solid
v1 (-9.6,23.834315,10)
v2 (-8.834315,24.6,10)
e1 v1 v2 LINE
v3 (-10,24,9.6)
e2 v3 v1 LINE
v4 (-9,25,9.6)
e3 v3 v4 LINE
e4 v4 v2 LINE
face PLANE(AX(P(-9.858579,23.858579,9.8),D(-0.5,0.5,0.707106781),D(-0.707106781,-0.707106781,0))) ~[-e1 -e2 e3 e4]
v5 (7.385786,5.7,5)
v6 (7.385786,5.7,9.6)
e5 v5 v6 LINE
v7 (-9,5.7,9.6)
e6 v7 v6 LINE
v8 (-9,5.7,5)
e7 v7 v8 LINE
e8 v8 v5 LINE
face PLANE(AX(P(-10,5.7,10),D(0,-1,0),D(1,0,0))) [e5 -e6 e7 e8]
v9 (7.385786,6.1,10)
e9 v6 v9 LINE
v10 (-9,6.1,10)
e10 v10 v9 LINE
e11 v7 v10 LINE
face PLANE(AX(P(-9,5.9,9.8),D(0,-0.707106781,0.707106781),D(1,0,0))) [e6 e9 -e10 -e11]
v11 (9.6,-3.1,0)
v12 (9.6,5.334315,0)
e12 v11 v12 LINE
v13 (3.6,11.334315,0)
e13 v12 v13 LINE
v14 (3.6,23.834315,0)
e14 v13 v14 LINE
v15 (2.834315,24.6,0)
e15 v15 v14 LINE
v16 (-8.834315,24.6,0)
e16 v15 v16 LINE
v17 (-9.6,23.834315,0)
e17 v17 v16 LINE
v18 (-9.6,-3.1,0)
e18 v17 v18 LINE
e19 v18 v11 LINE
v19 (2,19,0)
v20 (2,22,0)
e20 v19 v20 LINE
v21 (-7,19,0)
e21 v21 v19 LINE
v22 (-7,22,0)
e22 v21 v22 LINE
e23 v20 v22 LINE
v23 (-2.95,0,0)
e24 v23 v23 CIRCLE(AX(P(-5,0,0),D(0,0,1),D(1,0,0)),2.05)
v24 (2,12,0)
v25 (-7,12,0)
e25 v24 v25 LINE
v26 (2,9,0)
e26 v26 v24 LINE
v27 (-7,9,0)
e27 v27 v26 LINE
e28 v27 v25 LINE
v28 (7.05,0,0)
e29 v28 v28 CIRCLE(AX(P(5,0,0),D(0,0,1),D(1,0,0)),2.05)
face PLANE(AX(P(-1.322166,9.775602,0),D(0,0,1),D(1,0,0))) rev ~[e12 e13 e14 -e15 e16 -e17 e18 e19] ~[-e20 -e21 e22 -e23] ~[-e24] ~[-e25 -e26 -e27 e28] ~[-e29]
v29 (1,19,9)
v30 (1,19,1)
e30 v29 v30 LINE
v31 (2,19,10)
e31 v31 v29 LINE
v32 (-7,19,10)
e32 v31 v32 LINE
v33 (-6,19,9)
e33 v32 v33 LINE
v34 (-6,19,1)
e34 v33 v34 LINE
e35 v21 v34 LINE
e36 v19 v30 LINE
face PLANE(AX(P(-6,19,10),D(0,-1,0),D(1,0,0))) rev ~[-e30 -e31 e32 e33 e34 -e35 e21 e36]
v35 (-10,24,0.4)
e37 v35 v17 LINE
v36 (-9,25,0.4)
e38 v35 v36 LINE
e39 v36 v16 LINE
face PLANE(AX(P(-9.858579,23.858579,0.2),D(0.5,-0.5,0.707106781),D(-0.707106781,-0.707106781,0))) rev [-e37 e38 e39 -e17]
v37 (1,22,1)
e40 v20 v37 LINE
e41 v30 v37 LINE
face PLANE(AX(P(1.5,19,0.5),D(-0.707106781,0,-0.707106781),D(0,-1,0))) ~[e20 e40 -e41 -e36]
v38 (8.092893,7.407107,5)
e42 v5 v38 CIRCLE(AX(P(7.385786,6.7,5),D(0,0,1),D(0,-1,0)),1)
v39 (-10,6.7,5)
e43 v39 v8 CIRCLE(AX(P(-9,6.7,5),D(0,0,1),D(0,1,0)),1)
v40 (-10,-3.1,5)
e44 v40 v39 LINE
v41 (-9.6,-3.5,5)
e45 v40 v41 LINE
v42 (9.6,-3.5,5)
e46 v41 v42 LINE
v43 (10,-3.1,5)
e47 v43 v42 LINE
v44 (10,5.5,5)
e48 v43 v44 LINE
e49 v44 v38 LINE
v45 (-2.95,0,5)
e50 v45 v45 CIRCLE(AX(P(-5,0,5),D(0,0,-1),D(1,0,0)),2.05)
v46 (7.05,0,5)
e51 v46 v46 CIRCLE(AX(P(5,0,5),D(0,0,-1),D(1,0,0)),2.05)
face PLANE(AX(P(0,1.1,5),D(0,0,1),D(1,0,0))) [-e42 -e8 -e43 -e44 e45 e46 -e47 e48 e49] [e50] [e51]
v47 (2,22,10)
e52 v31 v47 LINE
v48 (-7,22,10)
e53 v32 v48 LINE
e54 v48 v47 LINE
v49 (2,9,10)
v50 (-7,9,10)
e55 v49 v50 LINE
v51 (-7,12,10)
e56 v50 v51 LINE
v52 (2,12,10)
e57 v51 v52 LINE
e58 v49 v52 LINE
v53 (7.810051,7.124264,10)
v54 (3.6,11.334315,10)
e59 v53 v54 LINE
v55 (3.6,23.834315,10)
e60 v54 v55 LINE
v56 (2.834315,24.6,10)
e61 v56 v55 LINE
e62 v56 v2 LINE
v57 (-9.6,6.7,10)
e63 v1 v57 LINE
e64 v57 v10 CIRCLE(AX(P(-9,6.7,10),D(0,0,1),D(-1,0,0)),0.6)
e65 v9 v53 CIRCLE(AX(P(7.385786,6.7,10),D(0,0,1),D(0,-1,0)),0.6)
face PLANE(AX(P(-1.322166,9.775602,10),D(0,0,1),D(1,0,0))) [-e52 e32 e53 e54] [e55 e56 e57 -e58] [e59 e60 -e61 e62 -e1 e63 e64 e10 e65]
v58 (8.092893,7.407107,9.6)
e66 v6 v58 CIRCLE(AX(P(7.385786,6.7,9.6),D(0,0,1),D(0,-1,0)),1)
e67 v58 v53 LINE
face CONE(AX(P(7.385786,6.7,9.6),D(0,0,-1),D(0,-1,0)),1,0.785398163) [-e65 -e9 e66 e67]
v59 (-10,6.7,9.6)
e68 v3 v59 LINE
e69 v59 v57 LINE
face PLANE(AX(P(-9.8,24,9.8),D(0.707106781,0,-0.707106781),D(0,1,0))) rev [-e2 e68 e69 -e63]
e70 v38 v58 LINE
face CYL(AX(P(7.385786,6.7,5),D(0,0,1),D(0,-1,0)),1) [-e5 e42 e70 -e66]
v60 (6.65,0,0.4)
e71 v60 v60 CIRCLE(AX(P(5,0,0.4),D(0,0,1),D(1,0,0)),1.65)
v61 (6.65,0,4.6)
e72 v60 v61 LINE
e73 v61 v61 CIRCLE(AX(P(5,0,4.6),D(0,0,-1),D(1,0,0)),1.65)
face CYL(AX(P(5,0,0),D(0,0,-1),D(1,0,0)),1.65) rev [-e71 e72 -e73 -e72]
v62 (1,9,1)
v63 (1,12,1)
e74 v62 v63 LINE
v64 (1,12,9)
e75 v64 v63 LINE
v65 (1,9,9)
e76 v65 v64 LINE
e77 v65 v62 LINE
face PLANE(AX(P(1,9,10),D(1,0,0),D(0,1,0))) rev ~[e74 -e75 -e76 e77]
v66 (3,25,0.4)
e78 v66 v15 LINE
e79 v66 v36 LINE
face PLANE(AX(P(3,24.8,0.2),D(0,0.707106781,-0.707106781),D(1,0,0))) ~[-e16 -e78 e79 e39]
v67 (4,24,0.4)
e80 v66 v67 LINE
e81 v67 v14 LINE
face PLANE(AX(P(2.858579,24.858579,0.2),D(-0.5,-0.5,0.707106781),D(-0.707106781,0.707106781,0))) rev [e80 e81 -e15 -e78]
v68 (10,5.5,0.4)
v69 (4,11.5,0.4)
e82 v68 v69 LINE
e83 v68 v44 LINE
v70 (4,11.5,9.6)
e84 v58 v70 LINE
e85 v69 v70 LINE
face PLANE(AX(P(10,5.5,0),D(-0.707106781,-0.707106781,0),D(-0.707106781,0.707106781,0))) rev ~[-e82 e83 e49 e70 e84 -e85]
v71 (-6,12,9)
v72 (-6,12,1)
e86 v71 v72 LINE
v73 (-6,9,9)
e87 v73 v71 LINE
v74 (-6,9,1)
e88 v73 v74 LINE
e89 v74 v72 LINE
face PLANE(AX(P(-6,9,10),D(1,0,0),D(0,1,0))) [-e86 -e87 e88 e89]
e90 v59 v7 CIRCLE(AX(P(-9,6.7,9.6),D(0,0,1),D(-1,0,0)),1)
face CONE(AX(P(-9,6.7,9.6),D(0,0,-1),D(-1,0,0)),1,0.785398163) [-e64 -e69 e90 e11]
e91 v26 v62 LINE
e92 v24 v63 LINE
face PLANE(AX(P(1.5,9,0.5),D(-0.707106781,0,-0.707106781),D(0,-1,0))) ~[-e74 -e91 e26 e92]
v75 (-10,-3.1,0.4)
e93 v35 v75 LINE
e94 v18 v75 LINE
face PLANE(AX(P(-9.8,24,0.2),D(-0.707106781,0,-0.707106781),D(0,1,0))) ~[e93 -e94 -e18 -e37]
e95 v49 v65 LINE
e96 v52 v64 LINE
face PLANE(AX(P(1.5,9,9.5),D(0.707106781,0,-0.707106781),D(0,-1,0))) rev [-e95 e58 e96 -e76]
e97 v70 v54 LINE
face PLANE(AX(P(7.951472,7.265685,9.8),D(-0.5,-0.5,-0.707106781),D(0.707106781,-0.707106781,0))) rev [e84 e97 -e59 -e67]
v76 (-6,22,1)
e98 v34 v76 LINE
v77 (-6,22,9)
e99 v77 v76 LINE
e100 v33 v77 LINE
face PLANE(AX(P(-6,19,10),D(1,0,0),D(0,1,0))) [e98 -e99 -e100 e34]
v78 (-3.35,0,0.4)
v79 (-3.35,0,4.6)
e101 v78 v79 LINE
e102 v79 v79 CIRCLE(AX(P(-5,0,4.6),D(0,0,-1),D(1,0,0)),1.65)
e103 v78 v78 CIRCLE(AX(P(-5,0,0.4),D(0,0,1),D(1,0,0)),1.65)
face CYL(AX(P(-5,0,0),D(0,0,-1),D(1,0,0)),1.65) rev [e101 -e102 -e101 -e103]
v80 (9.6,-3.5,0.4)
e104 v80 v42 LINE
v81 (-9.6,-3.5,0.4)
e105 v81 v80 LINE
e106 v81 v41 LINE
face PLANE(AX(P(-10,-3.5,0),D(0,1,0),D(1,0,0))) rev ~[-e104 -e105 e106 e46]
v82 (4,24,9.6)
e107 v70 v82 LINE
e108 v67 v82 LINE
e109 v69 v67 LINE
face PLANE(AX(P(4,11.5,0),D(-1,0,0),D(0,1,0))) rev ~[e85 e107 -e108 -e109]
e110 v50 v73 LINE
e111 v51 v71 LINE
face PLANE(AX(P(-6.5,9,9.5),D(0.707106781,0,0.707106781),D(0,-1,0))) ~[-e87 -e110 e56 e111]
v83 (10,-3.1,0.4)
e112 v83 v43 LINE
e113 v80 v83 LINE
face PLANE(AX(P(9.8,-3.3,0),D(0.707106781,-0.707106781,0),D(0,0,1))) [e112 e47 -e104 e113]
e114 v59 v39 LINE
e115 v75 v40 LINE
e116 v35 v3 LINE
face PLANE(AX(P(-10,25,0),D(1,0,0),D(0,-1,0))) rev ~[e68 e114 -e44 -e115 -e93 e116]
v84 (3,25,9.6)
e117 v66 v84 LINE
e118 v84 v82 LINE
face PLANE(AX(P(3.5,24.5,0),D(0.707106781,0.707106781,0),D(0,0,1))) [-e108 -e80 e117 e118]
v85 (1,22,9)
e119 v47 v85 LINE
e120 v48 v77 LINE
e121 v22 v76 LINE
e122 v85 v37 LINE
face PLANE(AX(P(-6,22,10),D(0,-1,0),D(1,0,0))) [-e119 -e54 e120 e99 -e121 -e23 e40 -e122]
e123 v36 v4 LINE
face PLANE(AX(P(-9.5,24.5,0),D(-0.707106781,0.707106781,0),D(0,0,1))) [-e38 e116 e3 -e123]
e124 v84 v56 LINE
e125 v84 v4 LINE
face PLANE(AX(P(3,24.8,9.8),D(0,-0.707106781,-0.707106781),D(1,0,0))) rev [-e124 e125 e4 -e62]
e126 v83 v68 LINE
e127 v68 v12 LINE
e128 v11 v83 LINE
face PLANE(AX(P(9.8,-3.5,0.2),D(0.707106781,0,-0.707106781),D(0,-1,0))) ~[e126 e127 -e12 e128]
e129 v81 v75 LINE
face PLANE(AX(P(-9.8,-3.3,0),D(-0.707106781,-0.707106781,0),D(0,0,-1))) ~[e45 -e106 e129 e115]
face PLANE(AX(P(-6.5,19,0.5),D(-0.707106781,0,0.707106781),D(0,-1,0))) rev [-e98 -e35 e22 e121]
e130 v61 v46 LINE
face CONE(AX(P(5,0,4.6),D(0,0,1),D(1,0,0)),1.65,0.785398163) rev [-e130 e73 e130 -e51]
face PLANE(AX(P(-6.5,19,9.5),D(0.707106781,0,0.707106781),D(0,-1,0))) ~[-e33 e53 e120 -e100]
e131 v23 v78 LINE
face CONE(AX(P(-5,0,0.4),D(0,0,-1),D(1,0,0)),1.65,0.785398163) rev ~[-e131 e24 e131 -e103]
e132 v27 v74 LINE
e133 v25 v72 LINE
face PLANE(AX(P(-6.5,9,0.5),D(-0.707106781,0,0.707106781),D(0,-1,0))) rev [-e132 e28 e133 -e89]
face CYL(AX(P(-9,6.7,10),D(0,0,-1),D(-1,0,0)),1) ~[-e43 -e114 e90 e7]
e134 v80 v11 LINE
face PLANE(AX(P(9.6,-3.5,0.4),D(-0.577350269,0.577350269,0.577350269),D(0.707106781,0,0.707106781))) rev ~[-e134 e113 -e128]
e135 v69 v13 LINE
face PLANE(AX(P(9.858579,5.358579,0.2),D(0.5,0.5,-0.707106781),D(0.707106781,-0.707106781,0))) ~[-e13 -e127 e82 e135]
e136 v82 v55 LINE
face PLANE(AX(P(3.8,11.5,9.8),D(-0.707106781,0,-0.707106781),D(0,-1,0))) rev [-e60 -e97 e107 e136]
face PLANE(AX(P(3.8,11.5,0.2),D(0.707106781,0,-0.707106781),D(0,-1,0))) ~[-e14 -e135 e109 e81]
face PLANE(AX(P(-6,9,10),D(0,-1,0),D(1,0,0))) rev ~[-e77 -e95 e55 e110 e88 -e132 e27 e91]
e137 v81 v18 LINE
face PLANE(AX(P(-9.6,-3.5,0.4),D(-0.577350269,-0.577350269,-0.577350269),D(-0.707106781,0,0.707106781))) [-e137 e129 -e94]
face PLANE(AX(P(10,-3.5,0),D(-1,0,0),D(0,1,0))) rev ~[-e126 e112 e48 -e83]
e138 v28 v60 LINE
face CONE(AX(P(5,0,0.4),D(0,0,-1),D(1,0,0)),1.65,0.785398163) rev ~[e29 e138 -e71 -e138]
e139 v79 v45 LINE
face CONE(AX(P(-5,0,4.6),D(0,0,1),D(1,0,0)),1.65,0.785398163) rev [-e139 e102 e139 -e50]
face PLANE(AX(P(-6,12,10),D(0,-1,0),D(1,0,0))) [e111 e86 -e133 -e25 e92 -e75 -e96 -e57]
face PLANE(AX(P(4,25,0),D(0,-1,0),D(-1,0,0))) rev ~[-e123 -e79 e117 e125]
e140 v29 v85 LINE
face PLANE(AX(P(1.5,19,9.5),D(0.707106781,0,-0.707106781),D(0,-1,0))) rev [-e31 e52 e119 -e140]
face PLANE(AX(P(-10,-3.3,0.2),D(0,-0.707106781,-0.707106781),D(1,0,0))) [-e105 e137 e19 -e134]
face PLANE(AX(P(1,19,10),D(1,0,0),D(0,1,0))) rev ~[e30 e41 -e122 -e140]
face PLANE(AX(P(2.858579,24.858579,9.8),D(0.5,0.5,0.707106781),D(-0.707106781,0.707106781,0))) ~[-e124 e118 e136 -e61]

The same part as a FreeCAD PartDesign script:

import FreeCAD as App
import Part
import Sketcher

V = App.Vector
Q = App.Units.Quantity


def edges_at(feature, points):
    """Names of the edges that pass closest to the given points."""
    edges = feature.Shape.Edges
    near = lambda p: min(range(len(edges)), key=lambda i: edges[i].distToShape(Part.Vertex(*p))[0])
    return sorted({f"Edge{near(p) + 1}" for p in points})


def add_polygon(sketch, points):
    """Adds a closed chain of lines whose ends are joined by coincident constraints."""
    first, n = sketch.GeometryCount, len(points)
    for a, b in zip(points, points[1:] + points[:1]):
        sketch.addGeometry(Part.LineSegment(App.Vector(*a, 0), App.Vector(*b, 0)), False)
    for i in range(n):
        sketch.addConstraint(Sketcher.Constraint("Coincident", first + i, 2, first + (i + 1) % n, 1))

doc = App.newDocument("Part")
params = doc.addObject("Spreadsheet::Sheet", "Params")
for row, (alias, value) in enumerate([
    ("sketch1_diameter", "3.3 mm"),
    ("sketch1_width", "20 mm"),
    ("sketch1_width2", "14 mm"),
    ("sketch1_height", "9 mm"),
    ("sketch1_height2", "13.5 mm"),
    ("pad1_length", "10 mm"),
    ("sketch2_width", "7 mm"),
    ("sketch2_height", "3 mm"),
    ("chamfer_size", "1 mm"),
    ("sketch3_width", "20 mm"),
    ("sketch3_height", "9.2 mm"),
    ("pocket2_length", "5 mm"),
    ("fillet_radius", "1 mm"),
    ("chamfer2_size", "0.4 mm"),
], start=1):
    params.set(f"A{row}", alias)
    params.set(f"B{row}", "=" + value)
    params.setAlias(f"B{row}", alias)

body = doc.addObject("PartDesign::Body", "Body")

# Sketch on XY plane
sketch1 = doc.addObject("Sketcher::SketchObject", "Sketch")
body.addObject(sketch1)
sketch1.AttachmentSupport = (doc.XY_Plane, [""])
sketch1.MapMode = "FlatFace"
add_polygon(sketch1, [(-10, -3.5), (10, -3.5), (10, 5.5), (4, 11.5), (4, 25), (-10, 25)])  # lines 0-5
sketch1.addGeometry(Part.Circle(V(-5, 0, 0), V(0, 0, 1), 1.65), False)  # 6
sketch1.addGeometry(Part.Circle(V(5, 0, 0), V(0, 0, 1), 1.65), False)  # 7
sketch1.addConstraint(Sketcher.Constraint("Horizontal", 0))
sketch1.addConstraint(Sketcher.Constraint("Vertical", 1))
sketch1.addConstraint(Sketcher.Constraint("Vertical", 3))
sketch1.addConstraint(Sketcher.Constraint("Horizontal", 4))
sketch1.addConstraint(Sketcher.Constraint("Vertical", 5))
sketch1.addConstraint(Sketcher.Constraint("Equal", 6, 7))
sketch1.addConstraint(Sketcher.Constraint("Symmetric", 6, 3, 7, 3, -1, 1))
sketch1.addConstraint(Sketcher.Constraint("PointOnObject", 6, 3, -1))
sketch1.addConstraint(Sketcher.Constraint("Diameter", 6, Q("3.3 mm")))
sketch1.addConstraint(Sketcher.Constraint("DistanceX", 0, 1, 0, 2, Q("20 mm")))
sketch1.addConstraint(Sketcher.Constraint("DistanceX", 4, 2, 4, 1, Q("14 mm")))
sketch1.addConstraint(Sketcher.Constraint("DistanceY", 1, 1, 1, 2, Q("9 mm")))
sketch1.addConstraint(Sketcher.Constraint("Angle", 2, Q("135 deg")))
sketch1.addConstraint(Sketcher.Constraint("DistanceY", 3, 1, 3, 2, Q("13.5 mm")))
sketch1.addConstraint(Sketcher.Constraint("DistanceX", 6, 3, -1, 1, Q("5 mm")))
sketch1.addConstraint(Sketcher.Constraint("DistanceX", -1, 1, 0, 2, Q("10 mm")))
sketch1.addConstraint(Sketcher.Constraint("DistanceY", -1, 1, 3, 2, Q("25 mm")))
sketch1.setExpression("Constraints[14]", "Params.sketch1_diameter")
sketch1.setExpression("Constraints[15]", "Params.sketch1_width")
sketch1.setExpression("Constraints[16]", "Params.sketch1_width2")
sketch1.setExpression("Constraints[17]", "Params.sketch1_height")
sketch1.setExpression("Constraints[19]", "Params.sketch1_height2")
pad1 = doc.addObject("PartDesign::Pad", "Pad")
body.addObject(pad1)
pad1.Profile = sketch1
pad1.setExpression("Length", "Params.pad1_length")

# Sketch on XY plane
sketch2 = doc.addObject("Sketcher::SketchObject", "Sketch001")
body.addObject(sketch2)
sketch2.AttachmentSupport = (doc.XY_Plane, [""])
sketch2.MapMode = "FlatFace"
sketch2.AttachmentOffset = App.Placement(V(0, 0, 10), App.Rotation())
add_polygon(sketch2, [(-6, 22), (-6, 19), (1, 19), (1, 22)])  # lines 0-3
add_polygon(sketch2, [(-6, 12), (-6, 9), (1, 9), (1, 12)])  # lines 4-7
sketch2.addConstraint(Sketcher.Constraint("Vertical", 0))
sketch2.addConstraint(Sketcher.Constraint("Horizontal", 1))
sketch2.addConstraint(Sketcher.Constraint("Vertical", 2))
sketch2.addConstraint(Sketcher.Constraint("Horizontal", 3))
sketch2.addConstraint(Sketcher.Constraint("Vertical", 4))
sketch2.addConstraint(Sketcher.Constraint("Horizontal", 5))
sketch2.addConstraint(Sketcher.Constraint("Vertical", 6))
sketch2.addConstraint(Sketcher.Constraint("Horizontal", 7))
sketch2.addConstraint(Sketcher.Constraint("Vertical", 3, 2, 4, 2))
sketch2.addConstraint(Sketcher.Constraint("Vertical", 2, 2, 5, 2))
sketch2.addConstraint(Sketcher.Constraint("Equal", 2, 4))
sketch2.addConstraint(Sketcher.Constraint("DistanceX", 1, 1, 1, 2, Q("7 mm")))
sketch2.addConstraint(Sketcher.Constraint("DistanceY", 0, 2, 0, 1, Q("3 mm")))
sketch2.addConstraint(Sketcher.Constraint("DistanceX", 0, 2, -1, 1, Q("6 mm")))
sketch2.addConstraint(Sketcher.Constraint("DistanceY", -1, 1, 0, 2, Q("19 mm")))
sketch2.addConstraint(Sketcher.Constraint("DistanceY", -1, 1, 4, 2, Q("9 mm")))
sketch2.setExpression("Constraints[19]", "Params.sketch2_width")
sketch2.setExpression("Constraints[20]", "Params.sketch2_height")
pocket1 = doc.addObject("PartDesign::Pocket", "Pocket")
body.addObject(pocket1)
pocket1.Profile = sketch2
pocket1.Type = "ThroughAll"
doc.recompute()

chamfer = doc.addObject("PartDesign::Chamfer", "Chamfer")
body.addObject(chamfer)
chamfer.Base = (pocket1, edges_at(pocket1, [
    (-10, 25, 5),
    (4, 25, 5),
    (-6, 20.5, 10),
    (-6, 10.5, 10),
    (1, 10.5, 10),
    (1, 20.5, 10),
    (-6, 20.5, 0),
    (1, 20.5, 0),
    (-6, 10.5, 0),
    (1, 10.5, 0),
]))
chamfer.setExpression("Size", "Params.chamfer_size")

# Sketch on XY plane
sketch3 = doc.addObject("Sketcher::SketchObject", "Sketch002")
body.addObject(sketch3)
sketch3.AttachmentSupport = (doc.XY_Plane, [""])
sketch3.MapMode = "FlatFace"
sketch3.AttachmentOffset = App.Placement(V(0, 0, 10), App.Rotation())
add_polygon(sketch3, [(-10, 5.7), (-10, -3.5), (10, -3.5), (10, 5.7)])  # lines 0-3
sketch3.addConstraint(Sketcher.Constraint("Vertical", 0))
sketch3.addConstraint(Sketcher.Constraint("Horizontal", 1))
sketch3.addConstraint(Sketcher.Constraint("Vertical", 2))
sketch3.addConstraint(Sketcher.Constraint("Horizontal", 3))
sketch3.addConstraint(Sketcher.Constraint("DistanceX", 1, 1, 1, 2, Q("20 mm")))
sketch3.addConstraint(Sketcher.Constraint("DistanceY", 0, 2, 0, 1, Q("9.2 mm")))
sketch3.addConstraint(Sketcher.Constraint("DistanceX", 0, 2, -1, 1, Q("10 mm")))
sketch3.addConstraint(Sketcher.Constraint("DistanceY", 0, 2, -1, 1, Q("3.5 mm")))
sketch3.setExpression("Constraints[8]", "Params.sketch3_width")
sketch3.setExpression("Constraints[9]", "Params.sketch3_height")
pocket2 = doc.addObject("PartDesign::Pocket", "Pocket001")
body.addObject(pocket2)
pocket2.Profile = sketch3
pocket2.setExpression("Length", "Params.pocket2_length")
doc.recompute()

fillet = doc.addObject("PartDesign::Fillet", "Fillet")
body.addObject(fillet)
fillet.Base = (pocket2, edges_at(pocket2, [(9.8, 5.7, 7.5), (-10, 5.7, 7.5)]))
fillet.setExpression("Radius", "Params.fillet_radius")
doc.recompute()

chamfer2 = doc.addObject("PartDesign::Chamfer", "Chamfer001")
body.addObject(chamfer2)
chamfer2.Base = (fillet, edges_at(fillet, [
    (-10, 10.25, 0),
    (-9.5, 24.5, 0),
    (-3, 25, 0),
    (3.5, 24.5, 0),
    (4, 17.75, 0),
    (7, 8.5, 0),
    (10, 1, 0),
    (3.35, 0, 0),
    (-6.65, 0, 0),
    (0, -3.5, 0),
    (-10, -3.5, 2.5),
    (10, -3.5, 2.5),
    (8.31, 6.317, 10),
    (-0.807, 5.7, 10),
    (-9.707, 5.993, 10),
    (-10, 15.35, 10),
    (-9.5, 24.5, 10),
    (-3, 25, 10),
    (3.5, 24.5, 10),
    (4, 17.75, 10),
    (6.046, 9.454, 10),
    (-6.65, 0, 5),
    (3.35, 0, 5),
]))
chamfer2.setExpression("Size", "Params.chamfer2_size")

doc.recompute()
